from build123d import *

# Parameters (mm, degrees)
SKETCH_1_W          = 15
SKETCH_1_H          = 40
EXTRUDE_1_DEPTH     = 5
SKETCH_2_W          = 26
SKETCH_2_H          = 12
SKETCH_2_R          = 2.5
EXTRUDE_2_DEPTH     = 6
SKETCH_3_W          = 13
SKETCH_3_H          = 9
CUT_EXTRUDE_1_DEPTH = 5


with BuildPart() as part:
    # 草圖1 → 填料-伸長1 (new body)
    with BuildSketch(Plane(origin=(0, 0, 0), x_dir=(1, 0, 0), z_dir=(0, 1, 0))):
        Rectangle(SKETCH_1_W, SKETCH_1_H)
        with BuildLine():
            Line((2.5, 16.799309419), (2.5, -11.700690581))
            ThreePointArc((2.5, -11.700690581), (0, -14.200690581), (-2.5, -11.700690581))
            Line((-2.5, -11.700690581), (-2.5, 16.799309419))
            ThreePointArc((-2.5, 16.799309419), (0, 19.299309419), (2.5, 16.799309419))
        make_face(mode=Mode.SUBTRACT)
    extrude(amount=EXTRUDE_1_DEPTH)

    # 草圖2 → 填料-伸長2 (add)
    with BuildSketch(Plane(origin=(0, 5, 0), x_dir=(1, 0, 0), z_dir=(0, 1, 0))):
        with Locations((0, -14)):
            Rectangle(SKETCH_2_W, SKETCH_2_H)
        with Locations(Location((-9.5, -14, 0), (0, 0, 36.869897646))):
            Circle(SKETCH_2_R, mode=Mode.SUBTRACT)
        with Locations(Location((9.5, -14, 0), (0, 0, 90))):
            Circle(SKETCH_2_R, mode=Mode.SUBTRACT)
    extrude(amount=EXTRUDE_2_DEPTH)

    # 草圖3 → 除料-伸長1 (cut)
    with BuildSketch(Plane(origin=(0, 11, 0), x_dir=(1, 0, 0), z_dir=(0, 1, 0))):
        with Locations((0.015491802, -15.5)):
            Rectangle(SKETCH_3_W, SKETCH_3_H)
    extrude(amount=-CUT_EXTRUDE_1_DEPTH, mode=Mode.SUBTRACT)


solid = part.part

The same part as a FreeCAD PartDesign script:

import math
import FreeCAD as App
import Part
import Sketcher
from FreeCAD import Vector

doc = App.newDocument("Part")
body = doc.addObject("PartDesign::Body", "Body")

# Sketch on XZ plane
sketch1 = body.newObject("Sketcher::SketchObject", "Sketch")
sketch1.AttachmentSupport = (doc.getObject("XZ_Plane"), [""])
sketch1.MapMode = "FlatFace"
sketch1.addGeometry([
    Part.LineSegment(Vector(-7.5, -20, 0), Vector(-7.5, 20, 0)),  # 0
    Part.LineSegment(Vector(-7.5, 20, 0), Vector(7.5, 20, 0)),  # 1
    Part.LineSegment(Vector(7.5, 20, 0), Vector(7.5, -20, 0)),  # 2
    Part.LineSegment(Vector(7.5, -20, 0), Vector(-7.5, -20, 0)),  # 3
    Part.ArcOfCircle(Part.Circle(Vector(0, -16.8, 0), Vector(0, 0, 1), 2.5), math.radians(180), math.radians(360)),  # 4
    Part.LineSegment(Vector(2.5, -16.8, 0), Vector(2.5, 11.7, 0)),  # 5
    Part.ArcOfCircle(Part.Circle(Vector(0, 11.7, 0), Vector(0, 0, 1), 2.5), math.radians(0), math.radians(180)),  # 6
    Part.LineSegment(Vector(-2.5, 11.7, 0), Vector(-2.5, -16.8, 0)),  # 7
], False)
sketch1.addConstraint([
    Sketcher.Constraint("Coincident", 0, 2, 1, 1),
    Sketcher.Constraint("Coincident", 1, 2, 2, 1),
    Sketcher.Constraint("Coincident", 2, 2, 3, 1),
    Sketcher.Constraint("Coincident", 3, 2, 0, 1),
    Sketcher.Constraint("Tangent", 4, 2, 5, 1),
    Sketcher.Constraint("Tangent", 5, 2, 6, 1),
    Sketcher.Constraint("Tangent", 6, 2, 7, 1),
    Sketcher.Constraint("Tangent", 7, 2, 4, 1),
    Sketcher.Constraint("Vertical", 0),
    Sketcher.Constraint("Horizontal", 1),
    Sketcher.Constraint("Vertical", 2),
    Sketcher.Constraint("Horizontal", 3),
    Sketcher.Constraint("Vertical", 5),
    Sketcher.Constraint("Vertical", 7),
    Sketcher.Constraint("Symmetric", 0, 2, 2, 2, -1, 1),
    Sketcher.Constraint("PointOnObject", 4, 3, -2),
    Sketcher.Constraint("Radius", 4, 2.5),
    Sketcher.Constraint("DistanceX", 1, 1, 1, 2, 15.0),
    Sketcher.Constraint("DistanceY", 0, 1, 0, 2, 40.0),
    Sketcher.Constraint("DistanceY", 5, 1, 5, 2, 28.5),
    Sketcher.Constraint("DistanceY", 4, 3, -1, 1, 16.799309),
])
pad1 = body.newObject("PartDesign::Pad", "Pad")
pad1.Profile = sketch1
pad1.Length = 5
pad1.Reversed = True

# Sketch on XZ plane
sketch2 = body.newObject("Sketcher::SketchObject", "Sketch001")
sketch2.AttachmentSupport = (doc.getObject("XZ_Plane"), [""])
sketch2.MapMode = "FlatFace"
sketch2.AttachmentOffset = App.Placement(Vector(0, 0, -5), App.Rotation())
sketch2.addGeometry([
    Part.LineSegment(Vector(-13, 8, 0), Vector(-13, 20, 0)),  # 0
    Part.LineSegment(Vector(-13, 20, 0), Vector(13, 20, 0)),  # 1
    Part.LineSegment(Vector(13, 20, 0), Vector(13, 8, 0)),  # 2
    Part.LineSegment(Vector(13, 8, 0), Vector(-13, 8, 0)),  # 3
    Part.Circle(Vector(-9.5, 14, 0), Vector(0, 0, 1), 2.5),  # 4
    Part.Circle(Vector(9.5, 14, 0), Vector(0, 0, 1), 2.5),  # 5
], False)
sketch2.addConstraint([
    Sketcher.Constraint("Coincident", 0, 2, 1, 1),
    Sketcher.Constraint("Coincident", 1, 2, 2, 1),
    Sketcher.Constraint("Coincident", 2, 2, 3, 1),
    Sketcher.Constraint("Coincident", 3, 2, 0, 1),
    Sketcher.Constraint("Vertical", 0),
    Sketcher.Constraint("Horizontal", 1),
    Sketcher.Constraint("Vertical", 2),
    Sketcher.Constraint("Horizontal", 3),
    Sketcher.Constraint("Equal", 4, 5),
    Sketcher.Constraint("Symmetric", 4, 3, 5, 3, -2),
    Sketcher.Constraint("Diameter", 4, 5.0),
    Sketcher.Constraint("DistanceX", 1, 1, 1, 2, 26.0),
    Sketcher.Constraint("DistanceY", 0, 1, 0, 2, 12.0),
    Sketcher.Constraint("DistanceY", -1, 1, 4, 3, 14.0),
    Sketcher.Constraint("DistanceX", 0, 2, -1, 1, 13.0),
    Sketcher.Constraint("DistanceY", -1, 1, 0, 2, 20.0),
    Sketcher.Constraint("DistanceX", 4, 3, 5, 3, 19.0),
])
pad2 = body.newObject("PartDesign::Pad", "Pad001")
pad2.Profile = sketch2
pad2.Length = 6
pad2.Reversed = True

# Sketch on XZ plane
sketch3 = body.newObject("Sketcher::SketchObject", "Sketch002")
sketch3.AttachmentSupport = (doc.getObject("XZ_Plane"), [""])
sketch3.MapMode = "FlatFace"
sketch3.AttachmentOffset = App.Placement(Vector(0, 0, -11), App.Rotation())
sketch3.addGeometry([
    Part.LineSegment(Vector(-6, 11, 0), Vector(-6, 20, 0)),
    Part.LineSegment(Vector(-6, 20, 0), Vector(7, 20, 0)),
    Part.LineSegment(Vector(7, 20, 0), Vector(7, 11, 0)),
    Part.LineSegment(Vector(7, 11, 0), Vector(-6, 11, 0)),
], False)
sketch3.addConstraint([
    Sketcher.Constraint("Coincident", 0, 2, 1, 1),
    Sketcher.Constraint("Coincident", 1, 2, 2, 1),
    Sketcher.Constraint("Coincident", 2, 2, 3, 1),
    Sketcher.Constraint("Coincident", 3, 2, 0, 1),
    Sketcher.Constraint("Vertical", 0),
    Sketcher.Constraint("Horizontal", 1),
    Sketcher.Constraint("Vertical", 2),
    Sketcher.Constraint("Horizontal", 3),
    Sketcher.Constraint("DistanceX", 1, 1, 1, 2, 13.0),
    Sketcher.Constraint("DistanceY", 0, 1, 0, 2, 9.0),
    Sketcher.Constraint("DistanceY", -1, 1, 0, 2, 20.0),
    Sketcher.Constraint("DistanceX", 0, 2, -1, 1, 6.484508),
])
pocket1 = body.newObject("PartDesign::Pocket", "Pocket")
pocket1.Profile = sketch3
pocket1.Length = 5
pocket1.Reversed = True

doc.recompute()
